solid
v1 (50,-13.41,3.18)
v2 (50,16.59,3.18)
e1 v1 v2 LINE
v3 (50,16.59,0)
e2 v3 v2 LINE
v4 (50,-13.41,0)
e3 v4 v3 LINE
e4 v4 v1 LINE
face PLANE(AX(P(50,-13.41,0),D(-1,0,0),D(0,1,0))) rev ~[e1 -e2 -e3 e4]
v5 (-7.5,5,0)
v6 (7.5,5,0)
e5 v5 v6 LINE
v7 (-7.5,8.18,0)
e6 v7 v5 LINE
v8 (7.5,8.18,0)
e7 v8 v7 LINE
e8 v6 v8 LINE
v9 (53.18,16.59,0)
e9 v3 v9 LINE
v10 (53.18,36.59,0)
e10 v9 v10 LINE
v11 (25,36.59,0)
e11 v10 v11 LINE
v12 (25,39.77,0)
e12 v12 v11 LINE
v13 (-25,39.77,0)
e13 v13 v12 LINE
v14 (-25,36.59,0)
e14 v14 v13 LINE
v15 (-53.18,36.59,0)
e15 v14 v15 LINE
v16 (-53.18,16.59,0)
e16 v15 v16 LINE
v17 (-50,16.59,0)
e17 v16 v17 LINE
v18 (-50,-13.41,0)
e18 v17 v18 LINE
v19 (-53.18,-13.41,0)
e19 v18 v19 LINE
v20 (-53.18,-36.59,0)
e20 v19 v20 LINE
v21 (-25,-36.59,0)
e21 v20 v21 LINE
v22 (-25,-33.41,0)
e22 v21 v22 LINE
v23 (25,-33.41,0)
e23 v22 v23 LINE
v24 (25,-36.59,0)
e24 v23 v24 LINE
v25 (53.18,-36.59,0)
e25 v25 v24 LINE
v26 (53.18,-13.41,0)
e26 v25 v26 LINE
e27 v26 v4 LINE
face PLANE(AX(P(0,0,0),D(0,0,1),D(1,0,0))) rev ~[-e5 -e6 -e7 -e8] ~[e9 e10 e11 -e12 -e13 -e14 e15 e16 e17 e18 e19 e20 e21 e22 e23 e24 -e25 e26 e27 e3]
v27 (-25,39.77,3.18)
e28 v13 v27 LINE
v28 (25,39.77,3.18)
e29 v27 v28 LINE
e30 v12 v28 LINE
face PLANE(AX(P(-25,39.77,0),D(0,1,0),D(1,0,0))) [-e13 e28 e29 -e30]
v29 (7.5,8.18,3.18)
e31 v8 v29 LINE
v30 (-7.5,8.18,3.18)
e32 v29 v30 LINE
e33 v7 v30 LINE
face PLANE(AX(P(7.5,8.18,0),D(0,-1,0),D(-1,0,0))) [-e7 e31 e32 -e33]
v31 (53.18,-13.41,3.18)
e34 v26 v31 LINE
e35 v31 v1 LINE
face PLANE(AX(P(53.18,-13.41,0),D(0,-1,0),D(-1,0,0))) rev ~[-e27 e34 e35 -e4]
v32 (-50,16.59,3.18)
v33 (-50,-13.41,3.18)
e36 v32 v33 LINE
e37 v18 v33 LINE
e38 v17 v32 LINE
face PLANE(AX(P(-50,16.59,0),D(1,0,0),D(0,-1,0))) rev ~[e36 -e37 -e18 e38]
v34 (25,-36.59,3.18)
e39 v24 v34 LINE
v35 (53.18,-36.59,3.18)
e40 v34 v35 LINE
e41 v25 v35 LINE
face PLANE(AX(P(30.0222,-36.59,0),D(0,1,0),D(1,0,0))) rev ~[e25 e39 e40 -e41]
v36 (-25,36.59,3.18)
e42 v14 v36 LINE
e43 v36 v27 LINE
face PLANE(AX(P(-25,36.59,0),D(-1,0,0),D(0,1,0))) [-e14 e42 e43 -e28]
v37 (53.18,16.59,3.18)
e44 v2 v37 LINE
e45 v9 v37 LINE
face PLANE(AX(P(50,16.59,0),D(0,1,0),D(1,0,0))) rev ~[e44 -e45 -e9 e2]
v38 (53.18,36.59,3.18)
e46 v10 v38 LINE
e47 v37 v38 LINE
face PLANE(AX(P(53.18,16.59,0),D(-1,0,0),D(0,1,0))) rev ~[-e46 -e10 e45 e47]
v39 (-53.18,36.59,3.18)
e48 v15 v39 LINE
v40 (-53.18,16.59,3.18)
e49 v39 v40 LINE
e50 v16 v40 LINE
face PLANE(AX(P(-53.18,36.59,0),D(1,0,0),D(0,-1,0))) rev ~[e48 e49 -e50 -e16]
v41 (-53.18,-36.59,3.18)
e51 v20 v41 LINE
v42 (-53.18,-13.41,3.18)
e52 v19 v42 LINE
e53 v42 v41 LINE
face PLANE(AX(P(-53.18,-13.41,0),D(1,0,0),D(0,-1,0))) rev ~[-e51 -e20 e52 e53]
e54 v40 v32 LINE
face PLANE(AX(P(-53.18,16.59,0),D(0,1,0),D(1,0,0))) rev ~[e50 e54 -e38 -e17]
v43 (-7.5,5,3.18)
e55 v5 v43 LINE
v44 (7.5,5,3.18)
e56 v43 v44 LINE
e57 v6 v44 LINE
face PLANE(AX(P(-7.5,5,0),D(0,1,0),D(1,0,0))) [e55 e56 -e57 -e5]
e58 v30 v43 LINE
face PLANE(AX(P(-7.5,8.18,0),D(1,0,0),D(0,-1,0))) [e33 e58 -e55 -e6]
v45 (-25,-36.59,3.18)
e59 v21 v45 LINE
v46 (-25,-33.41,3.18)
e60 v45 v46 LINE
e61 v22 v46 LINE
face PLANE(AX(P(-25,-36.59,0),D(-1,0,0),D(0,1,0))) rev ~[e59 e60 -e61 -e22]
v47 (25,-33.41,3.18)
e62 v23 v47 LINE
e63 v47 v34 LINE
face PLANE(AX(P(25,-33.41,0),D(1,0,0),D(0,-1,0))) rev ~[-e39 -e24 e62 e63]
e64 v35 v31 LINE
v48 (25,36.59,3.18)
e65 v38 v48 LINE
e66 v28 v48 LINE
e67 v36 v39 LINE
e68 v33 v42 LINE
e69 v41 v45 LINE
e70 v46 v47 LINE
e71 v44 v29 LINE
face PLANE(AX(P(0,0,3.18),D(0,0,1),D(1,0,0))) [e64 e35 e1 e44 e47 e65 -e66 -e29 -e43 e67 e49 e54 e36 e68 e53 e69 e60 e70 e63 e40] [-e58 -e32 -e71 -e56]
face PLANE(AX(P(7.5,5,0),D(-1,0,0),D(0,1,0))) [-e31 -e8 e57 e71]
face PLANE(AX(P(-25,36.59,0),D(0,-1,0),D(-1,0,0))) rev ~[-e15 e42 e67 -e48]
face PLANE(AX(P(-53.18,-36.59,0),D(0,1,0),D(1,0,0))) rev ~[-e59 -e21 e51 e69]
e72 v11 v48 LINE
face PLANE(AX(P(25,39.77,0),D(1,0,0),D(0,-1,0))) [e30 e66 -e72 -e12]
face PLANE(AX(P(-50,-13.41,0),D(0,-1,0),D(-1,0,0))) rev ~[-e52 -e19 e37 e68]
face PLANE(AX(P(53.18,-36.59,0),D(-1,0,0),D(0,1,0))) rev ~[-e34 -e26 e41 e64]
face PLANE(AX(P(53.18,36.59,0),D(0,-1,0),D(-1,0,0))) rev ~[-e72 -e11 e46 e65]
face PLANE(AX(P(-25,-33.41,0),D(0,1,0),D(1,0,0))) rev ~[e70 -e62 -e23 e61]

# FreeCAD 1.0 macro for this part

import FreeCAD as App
import Part
import Sketcher

V = App.Vector


def add_polygon(sketch, points):
    """Adds a closed chain of lines whose ends are joined by coincident constraints."""
    first, n = sketch.GeometryCount, len(points)
    for a, b in zip(points, points[1:] + points[:1]):
        sketch.addGeometry(Part.LineSegment(App.Vector(*a, 0), App.Vector(*b, 0)), False)
    for i in range(n):
        sketch.addConstraint(Sketcher.Constraint("Coincident", first + i, 2, first + (i + 1) % n, 1))

doc = App.newDocument("Part")
params = doc.addObject("Spreadsheet::Sheet", "Params")
for row, (alias, value) in enumerate([
    ("sketch1_width", "50 mm"),
    ("sketch1_width2", "15 mm"),
    ("sketch1_height", "30 mm"),
    ("sketch1_height2", "20 mm"),
    ("sketch1_width3", "3.18 mm"),
    ("pad1_length", "3.18 mm"),
], start=1):
    params.set(f"A{row}", alias)
    params.set(f"B{row}", "=" + value)
    params.setAlias(f"B{row}", alias)

body = doc.addObject("PartDesign::Body", "Body")

sketch1 = body.newObject("Sketcher::SketchObject", "Sketch")
sketch1.AttachmentSupport = (doc.getObject("XY_Plane"), [""])
sketch1.MapMode = "FlatFace"
add_polygon(sketch1, [(-53.2, -13.4), (-53.2, -36.6), (-25, -36.6), (-25, -33.4), (25, -33.4), (25, -36.6), (53.2, -36.6), (53.2, -13.4), (50, -13.4), (50, 16.6), (53.2, 16.6), (53.2, 36.6), (25, 36.6), (25, 39.8), (-25, 39.8), (-25, 36.6), (-53.2, 36.6), (-53.2, 16.6), (-50, 16.6), (-50, -13.4)])
add_polygon(sketch1, [(7.5, 5), (-7.5, 5), (-7.5, 8.2), (7.5, 8.2)])
sketch1.addConstraint([
    Sketcher.Constraint("Vertical", 0),
    Sketcher.Constraint("Horizontal", 1),
    Sketcher.Constraint("Vertical", 2),
    Sketcher.Constraint("Horizontal", 3),
    Sketcher.Constraint("Vertical", 4),
    Sketcher.Constraint("Horizontal", 5),
    Sketcher.Constraint("Vertical", 6),
    Sketcher.Constraint("Horizontal", 7),
    Sketcher.Constraint("Vertical", 8),
    Sketcher.Constraint("Horizontal", 9),
    Sketcher.Constraint("Vertical", 10),
    Sketcher.Constraint("Horizontal", 11),
    Sketcher.Constraint("Vertical", 12),
    Sketcher.Constraint("Horizontal", 13),
    Sketcher.Constraint("Vertical", 14),
    Sketcher.Constraint("Horizontal", 15),
    Sketcher.Constraint("Vertical", 16),
    Sketcher.Constraint("Horizontal", 17),
    Sketcher.Constraint("Vertical", 18),
    Sketcher.Constraint("Horizontal", 19),
    Sketcher.Constraint("Horizontal", 20),
    Sketcher.Constraint("Vertical", 21),
    Sketcher.Constraint("Horizontal", 22),
    Sketcher.Constraint("Vertical", 23),
    Sketcher.Constraint("Symmetric", 0, 2, 10, 2, -1, 1),
    Sketcher.Constraint("Symmetric", 4, 2, 14, 2, -1, 1),
    Sketcher.Constraint("Symmetric", 1, 2, 4, 2, -2),
    Sketcher.Constraint("Symmetric", 9, 2, 16, 2, -2),
    Sketcher.Constraint("Symmetric", 7, 2, 18, 2, -2),
    Sketcher.Constraint("Vertical", 6, 2, 9, 2),
    Sketcher.Constraint("Vertical", 4, 2, 11, 2),
    Sketcher.Constraint("Equal", 19, 2),
    Sketcher.Constraint("Equal", 4, 12),
    Sketcher.Constraint("Equal", 14, 21),
    Sketcher.Constraint("DistanceX", 3, 1, 3, 2, 50.0),
    Sketcher.Constraint("DistanceX", 20, 2, 20, 1, 15.0),
    Sketcher.Constraint("DistanceY", 8, 1, 8, 2, 30.0),
    Sketcher.Constraint("DistanceY", 10, 1, 10, 2, 20.0),
    Sketcher.Constraint("DistanceX", -1, 1, 7, 2, 50.0),
    Sketcher.Constraint("DistanceY", 3, 2, 6, 2, 20.0),
    Sketcher.Constraint("DistanceX", 7, 2, 7, 1, 3.18),
    Sketcher.Constraint("DistanceX", 20, 2, -1, 1, 7.5),
    Sketcher.Constraint("DistanceY", -1, 1, 20, 2, 5.0),
])
sketch1.setExpression("Constraints[58]", "Params.sketch1_width")
sketch1.setExpression("Constraints[59]", "Params.sketch1_width2")
sketch1.setExpression("Constraints[60]", "Params.sketch1_height")
sketch1.setExpression("Constraints[61]", "Params.sketch1_height2")
sketch1.setExpression("Constraints[64]", "Params.sketch1_width3")
pad1 = body.newObject("PartDesign::Pad", "Pad")
pad1.Profile = sketch1
pad1.setExpression("Length", "Params.pad1_length")

doc.recompute()
